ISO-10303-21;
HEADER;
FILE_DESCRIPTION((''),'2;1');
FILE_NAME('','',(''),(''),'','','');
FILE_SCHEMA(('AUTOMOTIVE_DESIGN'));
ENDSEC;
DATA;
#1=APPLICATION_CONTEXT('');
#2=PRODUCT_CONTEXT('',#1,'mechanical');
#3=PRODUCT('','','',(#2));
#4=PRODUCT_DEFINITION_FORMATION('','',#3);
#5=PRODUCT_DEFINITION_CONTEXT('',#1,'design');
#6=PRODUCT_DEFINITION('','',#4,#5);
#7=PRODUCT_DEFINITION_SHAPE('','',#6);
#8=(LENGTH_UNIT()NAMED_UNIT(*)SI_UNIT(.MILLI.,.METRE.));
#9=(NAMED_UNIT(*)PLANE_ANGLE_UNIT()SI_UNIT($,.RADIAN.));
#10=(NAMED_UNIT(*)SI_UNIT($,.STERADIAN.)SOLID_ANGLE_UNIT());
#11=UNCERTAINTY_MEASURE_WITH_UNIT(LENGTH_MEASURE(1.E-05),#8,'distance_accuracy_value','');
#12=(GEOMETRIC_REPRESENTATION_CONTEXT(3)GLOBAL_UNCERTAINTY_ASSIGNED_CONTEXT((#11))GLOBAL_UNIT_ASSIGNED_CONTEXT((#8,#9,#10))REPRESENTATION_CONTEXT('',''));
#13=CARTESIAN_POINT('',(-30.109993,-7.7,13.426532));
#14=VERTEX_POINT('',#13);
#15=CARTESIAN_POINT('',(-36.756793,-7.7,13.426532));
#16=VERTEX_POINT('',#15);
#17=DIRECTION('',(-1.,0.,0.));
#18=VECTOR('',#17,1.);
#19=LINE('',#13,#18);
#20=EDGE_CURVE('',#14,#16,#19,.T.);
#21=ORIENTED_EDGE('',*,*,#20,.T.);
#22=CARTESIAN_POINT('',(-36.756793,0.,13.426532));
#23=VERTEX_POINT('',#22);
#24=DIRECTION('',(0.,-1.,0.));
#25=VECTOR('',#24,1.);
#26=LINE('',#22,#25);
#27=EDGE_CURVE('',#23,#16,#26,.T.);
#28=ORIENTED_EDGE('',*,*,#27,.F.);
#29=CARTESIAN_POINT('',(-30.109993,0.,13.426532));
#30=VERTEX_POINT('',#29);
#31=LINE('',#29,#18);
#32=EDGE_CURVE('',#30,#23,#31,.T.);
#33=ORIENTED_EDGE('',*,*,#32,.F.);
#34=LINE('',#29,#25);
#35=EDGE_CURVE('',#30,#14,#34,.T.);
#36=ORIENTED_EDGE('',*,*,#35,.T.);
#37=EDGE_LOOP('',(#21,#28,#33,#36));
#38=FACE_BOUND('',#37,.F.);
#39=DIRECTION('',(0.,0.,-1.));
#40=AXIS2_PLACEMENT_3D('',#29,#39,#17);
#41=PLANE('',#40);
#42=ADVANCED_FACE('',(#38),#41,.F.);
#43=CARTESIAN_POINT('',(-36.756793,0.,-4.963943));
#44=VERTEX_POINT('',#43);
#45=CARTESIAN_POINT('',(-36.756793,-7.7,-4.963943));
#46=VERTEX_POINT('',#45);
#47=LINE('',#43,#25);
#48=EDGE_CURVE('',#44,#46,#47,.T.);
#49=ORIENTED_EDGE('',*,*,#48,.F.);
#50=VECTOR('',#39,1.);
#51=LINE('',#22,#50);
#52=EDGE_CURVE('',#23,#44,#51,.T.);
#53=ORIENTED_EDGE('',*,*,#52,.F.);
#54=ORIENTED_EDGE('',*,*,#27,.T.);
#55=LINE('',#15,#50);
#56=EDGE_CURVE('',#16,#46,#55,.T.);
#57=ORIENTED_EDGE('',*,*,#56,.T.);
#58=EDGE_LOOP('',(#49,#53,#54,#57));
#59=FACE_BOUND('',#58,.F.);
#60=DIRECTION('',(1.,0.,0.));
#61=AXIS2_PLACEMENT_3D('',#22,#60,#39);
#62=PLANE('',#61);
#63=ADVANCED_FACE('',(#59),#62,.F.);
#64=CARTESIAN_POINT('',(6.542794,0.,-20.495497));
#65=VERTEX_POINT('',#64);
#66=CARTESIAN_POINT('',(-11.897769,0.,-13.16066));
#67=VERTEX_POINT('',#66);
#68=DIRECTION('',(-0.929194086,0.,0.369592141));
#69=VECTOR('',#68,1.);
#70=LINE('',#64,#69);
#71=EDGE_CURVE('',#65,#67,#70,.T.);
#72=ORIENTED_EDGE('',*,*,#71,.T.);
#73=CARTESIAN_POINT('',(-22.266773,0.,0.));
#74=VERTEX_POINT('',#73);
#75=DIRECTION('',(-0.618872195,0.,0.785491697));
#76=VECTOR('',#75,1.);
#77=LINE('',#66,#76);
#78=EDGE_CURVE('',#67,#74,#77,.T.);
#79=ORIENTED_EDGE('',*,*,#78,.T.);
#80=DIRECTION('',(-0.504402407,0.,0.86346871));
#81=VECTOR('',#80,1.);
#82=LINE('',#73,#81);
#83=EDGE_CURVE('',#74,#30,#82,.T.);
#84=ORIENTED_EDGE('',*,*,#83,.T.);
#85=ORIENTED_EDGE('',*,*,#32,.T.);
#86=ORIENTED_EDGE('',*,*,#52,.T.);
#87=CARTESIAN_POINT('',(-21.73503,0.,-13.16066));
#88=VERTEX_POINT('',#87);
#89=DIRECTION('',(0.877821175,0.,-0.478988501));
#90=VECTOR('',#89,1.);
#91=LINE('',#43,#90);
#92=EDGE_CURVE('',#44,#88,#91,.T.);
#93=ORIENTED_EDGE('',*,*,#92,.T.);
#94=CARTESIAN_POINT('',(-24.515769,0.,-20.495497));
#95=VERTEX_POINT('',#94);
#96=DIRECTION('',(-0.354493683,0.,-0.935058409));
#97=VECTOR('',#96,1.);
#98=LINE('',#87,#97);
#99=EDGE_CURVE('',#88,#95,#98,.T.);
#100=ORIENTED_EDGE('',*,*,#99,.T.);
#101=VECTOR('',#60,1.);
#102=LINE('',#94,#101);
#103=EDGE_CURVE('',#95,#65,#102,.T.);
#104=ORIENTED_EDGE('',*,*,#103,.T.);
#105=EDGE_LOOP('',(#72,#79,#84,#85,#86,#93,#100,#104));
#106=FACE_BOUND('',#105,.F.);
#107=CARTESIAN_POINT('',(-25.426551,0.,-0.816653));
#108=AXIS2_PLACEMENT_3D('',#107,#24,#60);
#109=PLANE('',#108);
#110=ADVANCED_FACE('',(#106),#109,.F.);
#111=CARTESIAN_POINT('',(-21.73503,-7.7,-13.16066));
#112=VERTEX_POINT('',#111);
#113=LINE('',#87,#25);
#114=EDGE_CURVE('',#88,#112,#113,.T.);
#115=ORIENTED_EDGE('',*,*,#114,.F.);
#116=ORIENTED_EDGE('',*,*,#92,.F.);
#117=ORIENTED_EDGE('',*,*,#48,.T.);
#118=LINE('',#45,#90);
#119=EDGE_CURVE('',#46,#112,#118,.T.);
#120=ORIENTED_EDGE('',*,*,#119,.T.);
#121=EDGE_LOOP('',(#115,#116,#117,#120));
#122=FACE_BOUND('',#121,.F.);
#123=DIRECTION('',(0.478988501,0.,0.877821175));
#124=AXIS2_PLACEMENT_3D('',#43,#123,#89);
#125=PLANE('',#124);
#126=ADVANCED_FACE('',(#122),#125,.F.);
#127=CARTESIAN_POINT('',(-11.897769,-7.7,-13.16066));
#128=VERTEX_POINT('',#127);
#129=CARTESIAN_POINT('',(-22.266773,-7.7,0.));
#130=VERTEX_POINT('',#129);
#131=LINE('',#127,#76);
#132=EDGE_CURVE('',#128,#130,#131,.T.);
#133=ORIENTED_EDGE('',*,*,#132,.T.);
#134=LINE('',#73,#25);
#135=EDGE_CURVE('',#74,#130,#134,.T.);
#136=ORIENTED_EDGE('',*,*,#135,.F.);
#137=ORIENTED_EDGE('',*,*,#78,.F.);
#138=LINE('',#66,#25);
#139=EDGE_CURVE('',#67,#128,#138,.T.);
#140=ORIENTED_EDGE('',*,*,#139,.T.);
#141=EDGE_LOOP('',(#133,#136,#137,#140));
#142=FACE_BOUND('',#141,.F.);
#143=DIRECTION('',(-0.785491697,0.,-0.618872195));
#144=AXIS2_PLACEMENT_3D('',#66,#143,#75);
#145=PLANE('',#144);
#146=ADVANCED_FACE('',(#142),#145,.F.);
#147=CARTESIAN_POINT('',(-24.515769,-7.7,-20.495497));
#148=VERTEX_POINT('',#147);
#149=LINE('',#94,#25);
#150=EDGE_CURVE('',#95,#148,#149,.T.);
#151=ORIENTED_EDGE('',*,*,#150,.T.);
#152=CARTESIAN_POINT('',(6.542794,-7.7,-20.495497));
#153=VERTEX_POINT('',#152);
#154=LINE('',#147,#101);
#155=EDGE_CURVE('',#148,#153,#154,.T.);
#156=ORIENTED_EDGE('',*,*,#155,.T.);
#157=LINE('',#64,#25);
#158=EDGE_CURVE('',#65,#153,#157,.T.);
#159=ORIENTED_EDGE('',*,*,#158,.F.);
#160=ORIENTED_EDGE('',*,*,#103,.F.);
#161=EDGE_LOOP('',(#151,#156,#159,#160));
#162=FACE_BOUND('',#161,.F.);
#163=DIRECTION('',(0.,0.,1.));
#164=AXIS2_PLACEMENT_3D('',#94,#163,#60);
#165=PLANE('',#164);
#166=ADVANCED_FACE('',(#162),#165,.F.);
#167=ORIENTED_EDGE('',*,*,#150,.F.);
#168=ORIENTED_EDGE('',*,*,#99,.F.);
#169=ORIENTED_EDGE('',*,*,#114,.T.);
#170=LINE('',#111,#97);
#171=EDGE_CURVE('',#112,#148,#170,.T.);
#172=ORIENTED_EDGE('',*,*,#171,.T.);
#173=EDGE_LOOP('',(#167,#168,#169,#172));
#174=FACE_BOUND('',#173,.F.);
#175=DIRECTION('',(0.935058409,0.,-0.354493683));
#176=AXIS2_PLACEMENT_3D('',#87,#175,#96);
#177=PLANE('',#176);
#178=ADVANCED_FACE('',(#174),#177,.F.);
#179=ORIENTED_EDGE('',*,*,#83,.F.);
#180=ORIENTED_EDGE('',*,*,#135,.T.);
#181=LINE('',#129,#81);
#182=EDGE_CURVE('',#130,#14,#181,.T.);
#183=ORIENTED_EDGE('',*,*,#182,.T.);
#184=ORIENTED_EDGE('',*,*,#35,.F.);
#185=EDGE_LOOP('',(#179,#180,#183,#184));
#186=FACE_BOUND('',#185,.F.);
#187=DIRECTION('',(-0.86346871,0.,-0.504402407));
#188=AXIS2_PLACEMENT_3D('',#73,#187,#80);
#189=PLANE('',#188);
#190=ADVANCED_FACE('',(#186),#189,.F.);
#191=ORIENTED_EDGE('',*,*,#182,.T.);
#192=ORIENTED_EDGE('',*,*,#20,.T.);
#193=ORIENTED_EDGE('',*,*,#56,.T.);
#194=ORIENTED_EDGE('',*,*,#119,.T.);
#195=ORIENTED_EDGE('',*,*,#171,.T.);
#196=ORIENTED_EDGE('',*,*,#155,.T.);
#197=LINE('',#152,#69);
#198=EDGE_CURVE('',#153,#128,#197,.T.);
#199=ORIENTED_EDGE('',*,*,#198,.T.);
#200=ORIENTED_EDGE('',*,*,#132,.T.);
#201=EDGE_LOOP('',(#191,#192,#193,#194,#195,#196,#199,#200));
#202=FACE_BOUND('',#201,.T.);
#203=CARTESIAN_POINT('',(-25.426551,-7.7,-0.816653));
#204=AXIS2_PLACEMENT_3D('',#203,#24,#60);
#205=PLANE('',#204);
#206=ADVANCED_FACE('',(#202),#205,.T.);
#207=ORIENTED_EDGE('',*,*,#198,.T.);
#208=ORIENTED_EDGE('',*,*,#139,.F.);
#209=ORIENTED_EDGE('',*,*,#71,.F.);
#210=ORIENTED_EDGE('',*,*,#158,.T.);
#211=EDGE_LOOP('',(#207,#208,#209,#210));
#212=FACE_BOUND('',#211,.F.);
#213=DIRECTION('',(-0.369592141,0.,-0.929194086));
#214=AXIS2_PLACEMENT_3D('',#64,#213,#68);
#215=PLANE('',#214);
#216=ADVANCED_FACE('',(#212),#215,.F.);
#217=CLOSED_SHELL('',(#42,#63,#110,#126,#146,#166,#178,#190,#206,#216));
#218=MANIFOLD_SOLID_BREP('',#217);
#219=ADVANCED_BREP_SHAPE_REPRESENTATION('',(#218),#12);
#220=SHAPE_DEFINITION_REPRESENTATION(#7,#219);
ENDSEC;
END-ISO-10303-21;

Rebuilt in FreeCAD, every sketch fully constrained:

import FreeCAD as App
import Part
import Sketcher

V = App.Vector

doc = App.newDocument("Part")
body = doc.addObject("PartDesign::Body", "Body")

sketch1 = body.newObject("Sketcher::SketchObject", "Sketch")
sketch1.AttachmentSupport = (doc.getObject("XZ_Plane"), [""])
sketch1.MapMode = "FlatFace"
sketch1.addGeometry([
    Part.LineSegment(V(-30, 13, 0), V(-37, 13, 0)),
    Part.LineSegment(V(-37, 13, 0), V(-37, -5, 0)),
    Part.LineSegment(V(-37, -5, 0), V(-22, -13, 0)),
    Part.LineSegment(V(-22, -13, 0), V(-25, -20, 0)),
    Part.LineSegment(V(-25, -20, 0), V(7, -20, 0)),
    Part.LineSegment(V(7, -20, 0), V(-12, -13, 0)),
    Part.LineSegment(V(-12, -13, 0), V(-22, 0, 0)),
    Part.LineSegment(V(-22, 0, 0), V(-30, 13, 0)),
], False)
sketch1.addConstraint([
    Sketcher.Constraint("Coincident", 0, 2, 1, 1),
    Sketcher.Constraint("Coincident", 1, 2, 2, 1),
    Sketcher.Constraint("Coincident", 2, 2, 3, 1),
    Sketcher.Constraint("Coincident", 3, 2, 4, 1),
    Sketcher.Constraint("Coincident", 4, 2, 5, 1),
    Sketcher.Constraint("Coincident", 5, 2, 6, 1),
    Sketcher.Constraint("Coincident", 6, 2, 7, 1),
    Sketcher.Constraint("Coincident", 7, 2, 0, 1),
    Sketcher.Constraint("Horizontal", 0),
    Sketcher.Constraint("Vertical", 1),
    Sketcher.Constraint("Horizontal", 4),
    Sketcher.Constraint("PointOnObject", 6, 2, -1),
    Sketcher.Constraint("Horizontal", 2, 2, 5, 2),
    Sketcher.Constraint("DistanceX", 0, 2, 0, 1, 6.6468),
    Sketcher.Constraint("DistanceX", 3, 2, 5, 2, 12.618),
    Sketcher.Constraint("Distance", 5, 19.84576),
    Sketcher.Constraint("Distance", 7, 15.549529),
    Sketcher.Constraint("DistanceX", 4, 1, 4, 2, 31.058563),
    Sketcher.Constraint("DistanceY", 1, 2, 1, 1, 18.390475),
    Sketcher.Constraint("DistanceX", 2, 2, -1, 1, 21.73503),
    Sketcher.Constraint("DistanceY", 2, 2, -1, 1, 13.16066),
    Sketcher.Constraint("DistanceX", 3, 2, -1, 1, 24.515769),
    Sketcher.Constraint("DistanceY", 3, 2, 0, 2, 33.922029),
    Sketcher.Constraint("Distance", 2, 17.112555),
])
pad1 = body.newObject("PartDesign::Pad", "Pad")
pad1.Profile = sketch1
pad1.Length = 7.7

doc.recompute()
